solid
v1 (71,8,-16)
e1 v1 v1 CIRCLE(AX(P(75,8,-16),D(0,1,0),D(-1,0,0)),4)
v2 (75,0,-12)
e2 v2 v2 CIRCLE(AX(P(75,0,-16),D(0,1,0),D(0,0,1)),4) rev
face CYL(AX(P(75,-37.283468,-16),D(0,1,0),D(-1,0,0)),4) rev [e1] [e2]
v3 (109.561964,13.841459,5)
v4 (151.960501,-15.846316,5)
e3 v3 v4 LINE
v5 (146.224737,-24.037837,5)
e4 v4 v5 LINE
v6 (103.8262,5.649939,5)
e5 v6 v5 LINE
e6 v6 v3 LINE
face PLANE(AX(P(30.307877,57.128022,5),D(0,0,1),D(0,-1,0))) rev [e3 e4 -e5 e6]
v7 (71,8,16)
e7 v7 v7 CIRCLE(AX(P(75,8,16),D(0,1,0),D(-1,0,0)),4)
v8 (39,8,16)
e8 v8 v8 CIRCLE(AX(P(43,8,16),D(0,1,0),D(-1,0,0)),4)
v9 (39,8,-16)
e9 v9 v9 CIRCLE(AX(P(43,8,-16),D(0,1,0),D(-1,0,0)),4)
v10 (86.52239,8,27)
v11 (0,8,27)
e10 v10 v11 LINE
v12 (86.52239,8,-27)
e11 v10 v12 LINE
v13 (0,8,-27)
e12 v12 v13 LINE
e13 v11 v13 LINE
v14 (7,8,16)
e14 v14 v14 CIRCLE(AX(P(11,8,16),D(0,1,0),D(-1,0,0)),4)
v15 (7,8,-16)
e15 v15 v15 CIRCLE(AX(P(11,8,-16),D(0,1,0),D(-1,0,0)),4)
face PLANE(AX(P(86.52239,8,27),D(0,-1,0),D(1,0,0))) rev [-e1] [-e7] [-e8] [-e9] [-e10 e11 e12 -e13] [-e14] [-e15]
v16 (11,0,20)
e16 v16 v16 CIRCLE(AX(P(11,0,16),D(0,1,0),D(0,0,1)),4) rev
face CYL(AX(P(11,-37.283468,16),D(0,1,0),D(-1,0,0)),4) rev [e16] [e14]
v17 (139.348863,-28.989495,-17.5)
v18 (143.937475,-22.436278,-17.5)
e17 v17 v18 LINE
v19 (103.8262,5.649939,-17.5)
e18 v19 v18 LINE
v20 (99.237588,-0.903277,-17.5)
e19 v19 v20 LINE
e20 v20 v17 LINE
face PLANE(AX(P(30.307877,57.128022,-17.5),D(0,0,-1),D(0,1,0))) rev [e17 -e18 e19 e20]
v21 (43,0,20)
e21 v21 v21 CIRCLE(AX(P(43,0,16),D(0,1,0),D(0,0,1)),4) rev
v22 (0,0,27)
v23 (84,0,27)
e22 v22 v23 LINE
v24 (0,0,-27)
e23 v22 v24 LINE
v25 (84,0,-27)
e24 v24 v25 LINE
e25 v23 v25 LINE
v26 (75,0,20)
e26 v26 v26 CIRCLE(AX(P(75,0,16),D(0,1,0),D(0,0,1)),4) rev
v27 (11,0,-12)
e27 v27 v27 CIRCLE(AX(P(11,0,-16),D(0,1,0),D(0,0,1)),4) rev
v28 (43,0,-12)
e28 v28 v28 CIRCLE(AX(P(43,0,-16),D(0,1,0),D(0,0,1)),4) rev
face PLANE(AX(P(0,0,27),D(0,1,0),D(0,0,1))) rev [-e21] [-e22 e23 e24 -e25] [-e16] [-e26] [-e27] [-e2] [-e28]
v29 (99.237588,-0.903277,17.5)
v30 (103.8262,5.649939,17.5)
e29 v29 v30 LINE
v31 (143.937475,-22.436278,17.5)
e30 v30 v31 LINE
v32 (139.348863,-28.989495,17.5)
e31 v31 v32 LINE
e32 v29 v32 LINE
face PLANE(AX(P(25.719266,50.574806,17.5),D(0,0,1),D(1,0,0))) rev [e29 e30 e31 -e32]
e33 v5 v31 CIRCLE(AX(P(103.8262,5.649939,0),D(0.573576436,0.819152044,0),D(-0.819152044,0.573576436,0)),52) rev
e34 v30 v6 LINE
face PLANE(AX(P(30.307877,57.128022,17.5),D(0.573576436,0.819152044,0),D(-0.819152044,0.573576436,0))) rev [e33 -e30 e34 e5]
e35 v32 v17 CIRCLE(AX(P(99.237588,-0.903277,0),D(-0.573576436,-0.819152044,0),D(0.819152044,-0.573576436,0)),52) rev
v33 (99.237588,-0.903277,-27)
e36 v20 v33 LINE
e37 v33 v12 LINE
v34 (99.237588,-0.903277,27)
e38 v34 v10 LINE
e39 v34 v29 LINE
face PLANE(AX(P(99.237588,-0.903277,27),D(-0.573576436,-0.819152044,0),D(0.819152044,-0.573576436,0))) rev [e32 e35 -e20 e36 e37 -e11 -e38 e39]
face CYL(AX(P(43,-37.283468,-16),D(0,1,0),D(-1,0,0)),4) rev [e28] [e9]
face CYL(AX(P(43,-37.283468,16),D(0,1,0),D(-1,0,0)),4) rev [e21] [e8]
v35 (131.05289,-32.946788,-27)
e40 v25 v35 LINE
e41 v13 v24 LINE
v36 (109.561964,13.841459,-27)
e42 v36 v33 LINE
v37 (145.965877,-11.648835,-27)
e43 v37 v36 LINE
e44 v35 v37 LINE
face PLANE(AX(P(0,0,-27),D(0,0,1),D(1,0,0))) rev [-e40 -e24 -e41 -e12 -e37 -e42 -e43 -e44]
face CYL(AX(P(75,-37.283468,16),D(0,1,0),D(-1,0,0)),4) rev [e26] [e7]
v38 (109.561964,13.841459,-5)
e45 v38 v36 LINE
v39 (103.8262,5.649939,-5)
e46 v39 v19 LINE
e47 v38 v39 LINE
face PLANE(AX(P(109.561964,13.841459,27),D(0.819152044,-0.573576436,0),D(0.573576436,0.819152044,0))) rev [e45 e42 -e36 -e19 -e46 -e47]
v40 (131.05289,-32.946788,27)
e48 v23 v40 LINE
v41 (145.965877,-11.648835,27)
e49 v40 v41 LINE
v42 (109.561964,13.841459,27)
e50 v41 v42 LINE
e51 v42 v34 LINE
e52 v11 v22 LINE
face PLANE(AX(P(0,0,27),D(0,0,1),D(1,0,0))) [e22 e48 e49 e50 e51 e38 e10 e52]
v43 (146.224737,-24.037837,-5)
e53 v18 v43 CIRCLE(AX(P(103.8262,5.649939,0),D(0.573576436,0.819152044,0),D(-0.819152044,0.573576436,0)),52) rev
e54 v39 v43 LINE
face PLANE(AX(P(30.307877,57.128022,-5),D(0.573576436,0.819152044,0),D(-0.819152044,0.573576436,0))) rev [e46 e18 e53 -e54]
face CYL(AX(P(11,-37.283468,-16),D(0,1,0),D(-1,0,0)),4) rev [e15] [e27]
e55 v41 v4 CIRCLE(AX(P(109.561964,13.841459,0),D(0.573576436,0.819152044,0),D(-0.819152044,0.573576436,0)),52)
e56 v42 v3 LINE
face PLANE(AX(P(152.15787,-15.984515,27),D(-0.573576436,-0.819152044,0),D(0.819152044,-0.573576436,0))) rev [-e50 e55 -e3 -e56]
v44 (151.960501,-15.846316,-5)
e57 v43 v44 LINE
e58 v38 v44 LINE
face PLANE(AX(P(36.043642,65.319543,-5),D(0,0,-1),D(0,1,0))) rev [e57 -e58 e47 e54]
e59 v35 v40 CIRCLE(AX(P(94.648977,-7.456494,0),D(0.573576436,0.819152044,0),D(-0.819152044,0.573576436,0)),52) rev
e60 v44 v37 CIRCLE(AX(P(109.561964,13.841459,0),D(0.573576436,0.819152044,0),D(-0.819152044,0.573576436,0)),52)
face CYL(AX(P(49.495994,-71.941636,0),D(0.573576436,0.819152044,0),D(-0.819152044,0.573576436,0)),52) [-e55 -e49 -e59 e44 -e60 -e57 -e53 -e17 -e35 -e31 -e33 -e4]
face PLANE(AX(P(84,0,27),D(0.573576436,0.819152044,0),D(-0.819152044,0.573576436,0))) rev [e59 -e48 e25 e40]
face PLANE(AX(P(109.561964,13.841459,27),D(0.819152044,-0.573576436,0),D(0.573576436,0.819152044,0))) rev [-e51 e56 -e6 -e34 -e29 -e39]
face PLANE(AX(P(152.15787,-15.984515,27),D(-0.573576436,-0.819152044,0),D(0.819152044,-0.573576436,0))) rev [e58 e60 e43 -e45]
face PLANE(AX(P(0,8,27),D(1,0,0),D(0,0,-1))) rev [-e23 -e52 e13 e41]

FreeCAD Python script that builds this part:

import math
import FreeCAD as App
import Part
import Sketcher
Q = App.Units.Quantity

doc = App.newDocument("Part")
params = doc.addObject("Spreadsheet::Sheet", "Params")
for row, (alias, value) in enumerate([
    ("sketch1_width", "84 mm"),
    ("sketch1_height", "8 mm"),
    ("sketch1_length", "65 mm"),
    ("sketch1_length2", "26 mm"),
    ("sketch1_length3", "52 mm"),
    ("pad1_length", "54 mm"),
    ("sketch2_diameter", "8 mm"),
    ("sketch3_diameter", "8 mm"),
    ("sketch4_diameter", "8 mm"),
    ("sketch5_diameter", "8 mm"),
    ("sketch6_diameter", "8 mm"),
    ("sketch7_diameter", "8 mm"),
    ("sketch8_width", "10 mm"),
    ("sketch8_width2", "35 mm"),
    ("sketch8_height", "8 mm"),
    ("sketch9_radius", "52 mm"),
    ("sketch9_height", "54 mm"),
    ("pocket8_length", "26 mm"),
], start=1):
    params.set(f"A{row}", alias)
    params.set(f"B{row}", "=" + value)
    params.setAlias(f"B{row}", alias)

body = doc.addObject("PartDesign::Body", "Body")

# Sketch on XY plane
sketch1 = body.newObject("Sketcher::SketchObject", "Sketch")
sketch1.AttachmentSupport = (doc.getObject("XY_Plane"), [""])
sketch1.MapMode = "FlatFace"
sketch1.addGeometry([
    Part.LineSegment(App.Vector(0, 0, 0), App.Vector(84, 0, 0)),  # 0
    Part.LineSegment(App.Vector(84, 0, 0), App.Vector(137.244883, -37.282468, 0)),  # 1
    Part.LineSegment(App.Vector(137.244883, -37.282468, 0), App.Vector(152.15787, -15.984515, 0)),  # 2
    Part.LineSegment(App.Vector(152.15787, -15.984515, 0), App.Vector(109.561964, 13.841459, 0)),  # 3
    Part.LineSegment(App.Vector(109.561964, 13.841459, 0), App.Vector(99.237588, -0.903277, 0)),  # 4
    Part.LineSegment(App.Vector(99.237588, -0.903277, 0), App.Vector(86.52239, 8, 0)),  # 5
    Part.LineSegment(App.Vector(86.52239, 8, 0), App.Vector(0, 8, 0)),  # 6
    Part.LineSegment(App.Vector(0, 8, 0), App.Vector(0, 0, 0)),  # 7
], False)
sketch1.addConstraint([
    Sketcher.Constraint("Coincident", 0, 2, 1, 1),
    Sketcher.Constraint("Coincident", 1, 2, 2, 1),
    Sketcher.Constraint("Coincident", 2, 2, 3, 1),
    Sketcher.Constraint("Coincident", 3, 2, 4, 1),
    Sketcher.Constraint("Coincident", 4, 2, 5, 1),
    Sketcher.Constraint("Coincident", 5, 2, 6, 1),
    Sketcher.Constraint("Coincident", 6, 2, 7, 1),
    Sketcher.Constraint("Coincident", 7, 2, 0, 1),
    Sketcher.Constraint("Horizontal", 0),
    Sketcher.Constraint("Horizontal", 6),
    Sketcher.Constraint("Vertical", 7),
    Sketcher.Constraint("Coincident", 7, 2, -1, 1),
    Sketcher.Constraint("Perpendicular", 1, 2),
    Sketcher.Constraint("Perpendicular", 2, 3),
    Sketcher.Constraint("Perpendicular", 3, 4),
    Sketcher.Constraint("Perpendicular", 4, 5),
    Sketcher.Constraint("DistanceX", 0, 1, 0, 2, Q("84 mm")),
    Sketcher.Constraint("DistanceY", 7, 2, 7, 1, Q("8 mm")),
    Sketcher.Constraint("Angle", 1, Q("-35 deg")),
    Sketcher.Constraint("Distance", 1, Q("65 mm")),
    Sketcher.Constraint("Distance", 2, Q("26 mm")),
    Sketcher.Constraint("Distance", 3, Q("52 mm")),
    Sketcher.Constraint("Distance", 4, Q("18 mm")),
])
sketch1.setExpression("Constraints[16]", "Params.sketch1_width")
sketch1.setExpression("Constraints[17]", "Params.sketch1_height")
sketch1.setExpression("Constraints[19]", "Params.sketch1_length")
sketch1.setExpression("Constraints[20]", "Params.sketch1_length2")
sketch1.setExpression("Constraints[21]", "Params.sketch1_length3")
pad1 = body.newObject("PartDesign::Pad", "Pad")
pad1.Profile = sketch1
pad1.setExpression("Length", "Params.pad1_length")
pad1.Midplane = True

# Sketch on XZ plane
sketch2 = body.newObject("Sketcher::SketchObject", "Sketch001")
sketch2.AttachmentSupport = (doc.getObject("XZ_Plane"), [""])
sketch2.MapMode = "FlatFace"
sketch2.AttachmentOffset = App.Placement(App.Vector(0, 0, -8), App.Rotation())
sketch2.addGeometry(Part.Circle(App.Vector(11, -16, 0), App.Vector(0, 0, 1), 4), False)
sketch2.addConstraint([
    Sketcher.Constraint("Diameter", 0, Q("8 mm")),
    Sketcher.Constraint("DistanceX", -1, 1, 0, 3, Q("11 mm")),
    Sketcher.Constraint("DistanceY", 0, 3, -1, 1, Q("16 mm")),
])
sketch2.setExpression("Constraints[0]", "Params.sketch2_diameter")
pocket1 = body.newObject("PartDesign::Pocket", "Pocket")
pocket1.Profile = sketch2
pocket1.Type = "UpToFirst"
pocket1.Reversed = True

# Sketch on XZ plane
sketch3 = body.newObject("Sketcher::SketchObject", "Sketch002")
sketch3.AttachmentSupport = (doc.getObject("XZ_Plane"), [""])
sketch3.MapMode = "FlatFace"
sketch3.AttachmentOffset = App.Placement(App.Vector(0, 0, -8), App.Rotation())
sketch3.addGeometry(Part.Circle(App.Vector(43, -16, 0), App.Vector(0, 0, 1), 4), False)
sketch3.addConstraint([
    Sketcher.Constraint("Diameter", 0, Q("8 mm")),
    Sketcher.Constraint("DistanceX", -1, 1, 0, 3, Q("43 mm")),
    Sketcher.Constraint("DistanceY", 0, 3, -1, 1, Q("16 mm")),
])
sketch3.setExpression("Constraints[0]", "Params.sketch3_diameter")
pocket2 = body.newObject("PartDesign::Pocket", "Pocket001")
pocket2.Profile = sketch3
pocket2.Type = "UpToFirst"
pocket2.Reversed = True

# Sketch on XZ plane
sketch4 = body.newObject("Sketcher::SketchObject", "Sketch003")
sketch4.AttachmentSupport = (doc.getObject("XZ_Plane"), [""])
sketch4.MapMode = "FlatFace"
sketch4.AttachmentOffset = App.Placement(App.Vector(0, 0, -8), App.Rotation())
sketch4.addGeometry(Part.Circle(App.Vector(75, -16, 0), App.Vector(0, 0, 1), 4), False)
sketch4.addConstraint([
    Sketcher.Constraint("Diameter", 0, Q("8 mm")),
    Sketcher.Constraint("DistanceX", -1, 1, 0, 3, Q("75 mm")),
    Sketcher.Constraint("DistanceY", 0, 3, -1, 1, Q("16 mm")),
])
sketch4.setExpression("Constraints[0]", "Params.sketch4_diameter")
pocket3 = body.newObject("PartDesign::Pocket", "Pocket002")
pocket3.Profile = sketch4
pocket3.Type = "UpToFirst"
pocket3.Reversed = True

# Sketch on XZ plane
sketch5 = body.newObject("Sketcher::SketchObject", "Sketch004")
sketch5.AttachmentSupport = (doc.getObject("XZ_Plane"), [""])
sketch5.MapMode = "FlatFace"
sketch5.AttachmentOffset = App.Placement(App.Vector(0, 0, -8), App.Rotation())
sketch5.addGeometry(Part.Circle(App.Vector(43, 16, 0), App.Vector(0, 0, 1), 4), False)
sketch5.addConstraint([
    Sketcher.Constraint("Diameter", 0, Q("8 mm")),
    Sketcher.Constraint("DistanceX", -1, 1, 0, 3, Q("43 mm")),
    Sketcher.Constraint("DistanceY", -1, 1, 0, 3, Q("16 mm")),
])
sketch5.setExpression("Constraints[0]", "Params.sketch5_diameter")
pocket4 = body.newObject("PartDesign::Pocket", "Pocket003")
pocket4.Profile = sketch5
pocket4.Type = "UpToFirst"
pocket4.Reversed = True

# Sketch on XZ plane
sketch6 = body.newObject("Sketcher::SketchObject", "Sketch005")
sketch6.AttachmentSupport = (doc.getObject("XZ_Plane"), [""])
sketch6.MapMode = "FlatFace"
sketch6.AttachmentOffset = App.Placement(App.Vector(0, 0, -8), App.Rotation())
sketch6.addGeometry(Part.Circle(App.Vector(75, 16, 0), App.Vector(0, 0, 1), 4), False)
sketch6.addConstraint([
    Sketcher.Constraint("Diameter", 0, Q("8 mm")),
    Sketcher.Constraint("DistanceX", -1, 1, 0, 3, Q("75 mm")),
    Sketcher.Constraint("DistanceY", -1, 1, 0, 3, Q("16 mm")),
])
sketch6.setExpression("Constraints[0]", "Params.sketch6_diameter")
pocket5 = body.newObject("PartDesign::Pocket", "Pocket004")
pocket5.Profile = sketch6
pocket5.Type = "UpToFirst"
pocket5.Reversed = True

# Sketch on XZ plane
sketch7 = body.newObject("Sketcher::SketchObject", "Sketch006")
sketch7.AttachmentSupport = (doc.getObject("XZ_Plane"), [""])
sketch7.MapMode = "FlatFace"
sketch7.AttachmentOffset = App.Placement(App.Vector(0, 0, -8), App.Rotation())
sketch7.addGeometry(Part.Circle(App.Vector(11, 16, 0), App.Vector(0, 0, 1), 4), False)
sketch7.addConstraint([
    Sketcher.Constraint("Diameter", 0, Q("8 mm")),
    Sketcher.Constraint("DistanceX", -1, 1, 0, 3, Q("11 mm")),
    Sketcher.Constraint("DistanceY", -1, 1, 0, 3, Q("16 mm")),
])
sketch7.setExpression("Constraints[0]", "Params.sketch7_diameter")
pocket6 = body.newObject("PartDesign::Pocket", "Pocket005")
pocket6.Profile = sketch7
pocket6.Type = "UpToFirst"
pocket6.Reversed = True

# Sketch on an angled plane
sketch8 = body.newObject("Sketcher::SketchObject", "Sketch007")
sketch8.Placement = App.Placement(App.Vector(109.609729, -76.749558, 0), App.Rotation(App.Vector(0, 0, -1), App.Vector(0.573576436, 0.819152044, 0), App.Vector(0.819152044, -0.573576436, 0), "ZXY"))
sketch8.addGeometry([
    Part.LineSegment(App.Vector(5, 74.180421, 0), App.Vector(-5, 74.180421, 0)),  # 0
    Part.LineSegment(App.Vector(-5, 74.180421, 0), App.Vector(-5, 64.180421, 0)),  # 1
    Part.LineSegment(App.Vector(-5, 64.180421, 0), App.Vector(-17.5, 64.180421, 0)),  # 2
    Part.LineSegment(App.Vector(-17.5, 64.180421, 0), App.Vector(-17.5, 56.180421, 0)),  # 3
    Part.LineSegment(App.Vector(-17.5, 56.180421, 0), App.Vector(17.5, 56.180421, 0)),  # 4
    Part.LineSegment(App.Vector(17.5, 56.180421, 0), App.Vector(17.5, 64.180421, 0)),  # 5
    Part.LineSegment(App.Vector(17.5, 64.180421, 0), App.Vector(5, 64.180421, 0)),  # 6
    Part.LineSegment(App.Vector(5, 64.180421, 0), App.Vector(5, 74.180421, 0)),  # 7
], False)
sketch8.addConstraint([
    Sketcher.Constraint("Coincident", 0, 2, 1, 1),
    Sketcher.Constraint("Coincident", 1, 2, 2, 1),
    Sketcher.Constraint("Coincident", 2, 2, 3, 1),
    Sketcher.Constraint("Coincident", 3, 2, 4, 1),
    Sketcher.Constraint("Coincident", 4, 2, 5, 1),
    Sketcher.Constraint("Coincident", 5, 2, 6, 1),
    Sketcher.Constraint("Coincident", 6, 2, 7, 1),
    Sketcher.Constraint("Coincident", 7, 2, 0, 1),
    Sketcher.Constraint("Horizontal", 0),
    Sketcher.Constraint("Vertical", 1),
    Sketcher.Constraint("Horizontal", 2),
    Sketcher.Constraint("Vertical", 3),
    Sketcher.Constraint("Horizontal", 4),
    Sketcher.Constraint("Vertical", 5),
    Sketcher.Constraint("Horizontal", 6),
    Sketcher.Constraint("Vertical", 7),
    Sketcher.Constraint("Symmetric", 2, 2, 5, 2, -2),
    Sketcher.Constraint("Equal", 2, 6),
    Sketcher.Constraint("Equal", 0, 1),
    Sketcher.Constraint("DistanceX", 0, 2, 0, 1, Q("10 mm")),
    Sketcher.Constraint("DistanceX", 4, 1, 4, 2, Q("35 mm")),
    Sketcher.Constraint("DistanceY", 3, 2, 3, 1, Q("8 mm")),
    Sketcher.Constraint("DistanceY", -1, 1, 0, 2, Q("74.180421 mm")),
])
sketch8.setExpression("Constraints[19]", "Params.sketch8_width")
sketch8.setExpression("Constraints[20]", "Params.sketch8_width2")
sketch8.setExpression("Constraints[21]", "Params.sketch8_height")
pocket7 = body.newObject("PartDesign::Pocket", "Pocket006")
pocket7.Profile = sketch8
pocket7.Type = "UpToFirst"

# Sketch on an angled plane
sketch9 = body.newObject("Sketcher::SketchObject", "Sketch008")
sketch9.Placement = App.Placement(App.Vector(27.635154, 39.46709, 0), App.Rotation(App.Vector(0.819152044, -0.573576436, 0), App.Vector(0, 0, -0.999999999), App.Vector(0.573576436, 0.819152044, 0), "ZXY"))
sketch9.addGeometry([
    Part.LineSegment(App.Vector(150.866338, 27, 0), App.Vector(126.249744, 27, 0)),
    Part.ArcOfCircle(Part.Circle(App.Vector(81.808772, 0, 0), App.Vector(0, 0, 1), 52), math.radians(-31.280667), math.radians(31.280667)),
    Part.LineSegment(App.Vector(126.249744, -27, 0), App.Vector(150.866338, -27, 0)),
    Part.LineSegment(App.Vector(150.866338, -27, 0), App.Vector(150.866338, 27, 0)),
], False)
sketch9.addConstraint([
    Sketcher.Constraint("Coincident", 0, 2, 1, 2),
    Sketcher.Constraint("Coincident", 1, 1, 2, 1),
    Sketcher.Constraint("Coincident", 2, 2, 3, 1),
    Sketcher.Constraint("Coincident", 3, 2, 0, 1),
    Sketcher.Constraint("Horizontal", 0),
    Sketcher.Constraint("Horizontal", 2),
    Sketcher.Constraint("Vertical", 3),
    Sketcher.Constraint("Symmetric", 0, 2, 1, 1, -1),
    Sketcher.Constraint("Radius", 1, Q("52 mm")),
    Sketcher.Constraint("DistanceY", 3, 1, 3, 2, Q("54 mm")),
    Sketcher.Constraint("DistanceX", 0, 2, 0, 1, Q("24.616594 mm")),
    Sketcher.Constraint("DistanceX", -1, 1, 1, 3, Q("81.808772 mm")),
])
sketch9.setExpression("Constraints[8]", "Params.sketch9_radius")
sketch9.setExpression("Constraints[9]", "Params.sketch9_height")
pocket8 = body.newObject("PartDesign::Pocket", "Pocket007")
pocket8.Profile = sketch9
pocket8.setExpression("Length", "Params.pocket8_length")
pocket8.Reversed = True

doc.recompute()
